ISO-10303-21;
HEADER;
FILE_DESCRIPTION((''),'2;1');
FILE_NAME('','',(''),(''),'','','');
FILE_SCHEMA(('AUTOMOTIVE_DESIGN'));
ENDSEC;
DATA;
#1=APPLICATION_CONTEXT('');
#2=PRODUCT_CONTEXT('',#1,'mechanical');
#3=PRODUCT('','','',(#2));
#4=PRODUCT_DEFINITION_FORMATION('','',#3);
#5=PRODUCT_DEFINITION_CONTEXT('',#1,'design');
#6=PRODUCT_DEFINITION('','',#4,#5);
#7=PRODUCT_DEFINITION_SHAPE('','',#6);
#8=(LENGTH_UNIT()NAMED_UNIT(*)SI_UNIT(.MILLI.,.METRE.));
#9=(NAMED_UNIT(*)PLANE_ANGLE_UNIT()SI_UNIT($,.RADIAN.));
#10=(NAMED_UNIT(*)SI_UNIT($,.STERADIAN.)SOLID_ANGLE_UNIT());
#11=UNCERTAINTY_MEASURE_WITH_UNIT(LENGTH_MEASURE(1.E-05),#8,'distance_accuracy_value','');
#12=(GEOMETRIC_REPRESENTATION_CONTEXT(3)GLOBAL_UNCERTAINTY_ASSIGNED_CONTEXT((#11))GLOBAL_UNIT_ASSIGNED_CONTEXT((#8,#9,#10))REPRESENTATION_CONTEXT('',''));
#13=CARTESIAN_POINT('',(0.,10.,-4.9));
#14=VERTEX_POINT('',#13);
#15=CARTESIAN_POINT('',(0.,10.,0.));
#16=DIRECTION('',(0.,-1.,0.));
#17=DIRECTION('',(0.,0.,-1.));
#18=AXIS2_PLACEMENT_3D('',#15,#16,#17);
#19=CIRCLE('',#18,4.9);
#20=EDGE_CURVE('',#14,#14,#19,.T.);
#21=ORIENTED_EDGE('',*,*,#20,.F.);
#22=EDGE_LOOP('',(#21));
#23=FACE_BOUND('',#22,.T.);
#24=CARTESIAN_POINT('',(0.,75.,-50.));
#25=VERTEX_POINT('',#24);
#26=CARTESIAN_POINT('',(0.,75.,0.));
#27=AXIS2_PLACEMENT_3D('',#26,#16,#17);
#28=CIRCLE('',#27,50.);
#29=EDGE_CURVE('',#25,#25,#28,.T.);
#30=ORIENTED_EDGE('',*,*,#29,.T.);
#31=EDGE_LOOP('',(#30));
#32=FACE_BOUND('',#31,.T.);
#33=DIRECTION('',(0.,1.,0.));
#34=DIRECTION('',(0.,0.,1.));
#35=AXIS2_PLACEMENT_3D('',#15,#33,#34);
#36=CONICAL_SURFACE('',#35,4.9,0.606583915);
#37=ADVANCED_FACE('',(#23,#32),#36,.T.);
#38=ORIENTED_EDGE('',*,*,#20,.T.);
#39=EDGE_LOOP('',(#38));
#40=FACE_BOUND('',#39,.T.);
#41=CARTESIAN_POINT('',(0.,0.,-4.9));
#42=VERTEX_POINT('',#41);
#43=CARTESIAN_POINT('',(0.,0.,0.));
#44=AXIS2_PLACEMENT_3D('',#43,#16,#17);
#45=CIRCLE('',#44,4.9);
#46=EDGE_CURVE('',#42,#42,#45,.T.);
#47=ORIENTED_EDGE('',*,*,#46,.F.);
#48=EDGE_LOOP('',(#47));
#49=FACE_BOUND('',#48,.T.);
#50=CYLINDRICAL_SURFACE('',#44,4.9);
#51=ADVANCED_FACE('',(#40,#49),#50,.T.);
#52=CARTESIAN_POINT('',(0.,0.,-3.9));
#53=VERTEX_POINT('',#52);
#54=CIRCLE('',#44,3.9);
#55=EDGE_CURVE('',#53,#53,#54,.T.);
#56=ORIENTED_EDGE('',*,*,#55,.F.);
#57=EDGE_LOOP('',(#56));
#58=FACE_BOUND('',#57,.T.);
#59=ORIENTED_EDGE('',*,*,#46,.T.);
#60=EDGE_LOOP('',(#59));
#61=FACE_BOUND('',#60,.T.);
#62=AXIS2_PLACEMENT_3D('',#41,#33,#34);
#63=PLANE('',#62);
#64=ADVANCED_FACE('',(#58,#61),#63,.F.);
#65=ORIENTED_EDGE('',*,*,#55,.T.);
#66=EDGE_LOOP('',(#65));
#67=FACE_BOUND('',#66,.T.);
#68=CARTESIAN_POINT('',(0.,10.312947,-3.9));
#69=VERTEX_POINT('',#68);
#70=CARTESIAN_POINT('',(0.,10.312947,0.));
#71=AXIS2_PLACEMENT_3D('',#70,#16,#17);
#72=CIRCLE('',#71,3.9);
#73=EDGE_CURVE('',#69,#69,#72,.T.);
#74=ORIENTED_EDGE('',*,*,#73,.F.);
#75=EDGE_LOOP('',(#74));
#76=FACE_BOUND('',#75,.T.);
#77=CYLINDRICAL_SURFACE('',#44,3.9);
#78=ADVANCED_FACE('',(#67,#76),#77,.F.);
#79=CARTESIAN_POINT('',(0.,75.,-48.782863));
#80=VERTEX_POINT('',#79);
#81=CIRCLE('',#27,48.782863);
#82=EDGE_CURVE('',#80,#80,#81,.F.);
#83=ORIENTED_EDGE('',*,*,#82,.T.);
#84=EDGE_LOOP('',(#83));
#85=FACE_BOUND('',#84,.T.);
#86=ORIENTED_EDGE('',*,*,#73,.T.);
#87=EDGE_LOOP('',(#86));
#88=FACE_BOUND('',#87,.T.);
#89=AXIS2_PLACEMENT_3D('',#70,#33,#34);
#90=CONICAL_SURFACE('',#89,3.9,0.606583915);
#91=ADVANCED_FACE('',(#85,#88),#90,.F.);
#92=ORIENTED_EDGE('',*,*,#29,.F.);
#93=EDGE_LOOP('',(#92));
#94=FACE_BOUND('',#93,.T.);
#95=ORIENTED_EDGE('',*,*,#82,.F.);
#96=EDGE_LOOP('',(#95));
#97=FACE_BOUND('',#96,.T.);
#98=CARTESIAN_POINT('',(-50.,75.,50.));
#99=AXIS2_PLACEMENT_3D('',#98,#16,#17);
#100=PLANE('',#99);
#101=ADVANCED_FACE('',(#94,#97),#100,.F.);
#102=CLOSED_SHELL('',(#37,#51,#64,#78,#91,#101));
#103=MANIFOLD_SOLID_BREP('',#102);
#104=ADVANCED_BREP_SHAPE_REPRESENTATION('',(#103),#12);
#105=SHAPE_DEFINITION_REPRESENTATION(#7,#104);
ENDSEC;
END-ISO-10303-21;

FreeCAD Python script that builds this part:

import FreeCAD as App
import Part
import Sketcher

doc = App.newDocument("Part")
body = doc.addObject("PartDesign::Body", "Body")

sketch1 = doc.addObject("Sketcher::SketchObject", "Sketch")
body.addObject(sketch1)
sketch1.AttachmentSupport = (doc.YZ_Plane, [""])
sketch1.MapMode = "FlatFace"
sketch1.addGeometry([
    Part.LineSegment(App.Vector(0, -4.9, 0), App.Vector(10, -4.9, 0)),
    Part.LineSegment(App.Vector(10, -4.9, 0), App.Vector(75, -50, 0)),
    Part.LineSegment(App.Vector(75, -50, 0), App.Vector(75.570064, -49.1784, 0)),
    Part.LineSegment(App.Vector(75.570064, -49.1784, 0), App.Vector(10.312947, -3.9, 0)),
    Part.LineSegment(App.Vector(10.312947, -3.9, 0), App.Vector(0, -3.9, 0)),
    Part.LineSegment(App.Vector(0, -3.9, 0), App.Vector(0, -4.9, 0)),
], False)
sketch1.addConstraint([
    Sketcher.Constraint("Coincident", 0, 2, 1, 1),
    Sketcher.Constraint("Coincident", 1, 2, 2, 1),
    Sketcher.Constraint("Coincident", 2, 2, 3, 1),
    Sketcher.Constraint("Coincident", 3, 2, 4, 1),
    Sketcher.Constraint("Coincident", 4, 2, 5, 1),
    Sketcher.Constraint("Coincident", 5, 2, 0, 1),
    Sketcher.Constraint("Horizontal", 0),
    Sketcher.Constraint("Horizontal", 4),
    Sketcher.Constraint("Vertical", 5),
    Sketcher.Constraint("PointOnObject", 4, 2, -2),
    Sketcher.Constraint("Perpendicular", 1, 2),
    Sketcher.Constraint("Perpendicular", 2, 3),
    Sketcher.Constraint("DistanceX", 0, 1, 0, 2, 10.0),
    Sketcher.Constraint("DistanceY", 5, 2, 5, 1, 1.0),
    Sketcher.Constraint("Distance", 2, 1.0),
    Sketcher.Constraint("DistanceX", -1, 1, 1, 2, 75.0),
    Sketcher.Constraint("DistanceY", 1, 2, -1, 1, 50.0),
    Sketcher.Constraint("DistanceY", 0, 2, -1, 1, 4.9),
])
revolution = doc.addObject("PartDesign::Revolution", "Revolution")
body.addObject(revolution)
revolution.Profile = sketch1
revolution.ReferenceAxis = (sketch1, ["H_Axis"])
revolution.Angle = 360

sketch2 = doc.addObject("Sketcher::SketchObject", "Sketch001")
body.addObject(sketch2)
sketch2.AttachmentSupport = (doc.YZ_Plane, [""])
sketch2.MapMode = "FlatFace"
sketch2.addGeometry([
    Part.LineSegment(App.Vector(75.570064, 50, 0), App.Vector(75, 50, 0)),
    Part.LineSegment(App.Vector(75, 50, 0), App.Vector(75, -50, 0)),
    Part.LineSegment(App.Vector(75, -50, 0), App.Vector(75.570064, -50, 0)),
    Part.LineSegment(App.Vector(75.570064, -50, 0), App.Vector(75.570064, 50, 0)),
], False)
sketch2.addConstraint([
    Sketcher.Constraint("Coincident", 0, 2, 1, 1),
    Sketcher.Constraint("Coincident", 1, 2, 2, 1),
    Sketcher.Constraint("Coincident", 2, 2, 3, 1),
    Sketcher.Constraint("Coincident", 3, 2, 0, 1),
    Sketcher.Constraint("Horizontal", 0),
    Sketcher.Constraint("Vertical", 1),
    Sketcher.Constraint("Horizontal", 2),
    Sketcher.Constraint("Vertical", 3),
    Sketcher.Constraint("DistanceY", 1, 2, 1, 1, 100.0),
    Sketcher.Constraint("DistanceX", -1, 1, 0, 2, 75.0),
    Sketcher.Constraint("DistanceY", -1, 1, 0, 2, 50.0),
    Sketcher.Constraint("DistanceX", 0, 2, 0, 1, 0.570064),
])
pocket1 = doc.addObject("PartDesign::Pocket", "Pocket")
body.addObject(pocket1)
pocket1.Profile = sketch2
pocket1.Type = "ThroughAll"
pocket1.Midplane = True

doc.recompute()
